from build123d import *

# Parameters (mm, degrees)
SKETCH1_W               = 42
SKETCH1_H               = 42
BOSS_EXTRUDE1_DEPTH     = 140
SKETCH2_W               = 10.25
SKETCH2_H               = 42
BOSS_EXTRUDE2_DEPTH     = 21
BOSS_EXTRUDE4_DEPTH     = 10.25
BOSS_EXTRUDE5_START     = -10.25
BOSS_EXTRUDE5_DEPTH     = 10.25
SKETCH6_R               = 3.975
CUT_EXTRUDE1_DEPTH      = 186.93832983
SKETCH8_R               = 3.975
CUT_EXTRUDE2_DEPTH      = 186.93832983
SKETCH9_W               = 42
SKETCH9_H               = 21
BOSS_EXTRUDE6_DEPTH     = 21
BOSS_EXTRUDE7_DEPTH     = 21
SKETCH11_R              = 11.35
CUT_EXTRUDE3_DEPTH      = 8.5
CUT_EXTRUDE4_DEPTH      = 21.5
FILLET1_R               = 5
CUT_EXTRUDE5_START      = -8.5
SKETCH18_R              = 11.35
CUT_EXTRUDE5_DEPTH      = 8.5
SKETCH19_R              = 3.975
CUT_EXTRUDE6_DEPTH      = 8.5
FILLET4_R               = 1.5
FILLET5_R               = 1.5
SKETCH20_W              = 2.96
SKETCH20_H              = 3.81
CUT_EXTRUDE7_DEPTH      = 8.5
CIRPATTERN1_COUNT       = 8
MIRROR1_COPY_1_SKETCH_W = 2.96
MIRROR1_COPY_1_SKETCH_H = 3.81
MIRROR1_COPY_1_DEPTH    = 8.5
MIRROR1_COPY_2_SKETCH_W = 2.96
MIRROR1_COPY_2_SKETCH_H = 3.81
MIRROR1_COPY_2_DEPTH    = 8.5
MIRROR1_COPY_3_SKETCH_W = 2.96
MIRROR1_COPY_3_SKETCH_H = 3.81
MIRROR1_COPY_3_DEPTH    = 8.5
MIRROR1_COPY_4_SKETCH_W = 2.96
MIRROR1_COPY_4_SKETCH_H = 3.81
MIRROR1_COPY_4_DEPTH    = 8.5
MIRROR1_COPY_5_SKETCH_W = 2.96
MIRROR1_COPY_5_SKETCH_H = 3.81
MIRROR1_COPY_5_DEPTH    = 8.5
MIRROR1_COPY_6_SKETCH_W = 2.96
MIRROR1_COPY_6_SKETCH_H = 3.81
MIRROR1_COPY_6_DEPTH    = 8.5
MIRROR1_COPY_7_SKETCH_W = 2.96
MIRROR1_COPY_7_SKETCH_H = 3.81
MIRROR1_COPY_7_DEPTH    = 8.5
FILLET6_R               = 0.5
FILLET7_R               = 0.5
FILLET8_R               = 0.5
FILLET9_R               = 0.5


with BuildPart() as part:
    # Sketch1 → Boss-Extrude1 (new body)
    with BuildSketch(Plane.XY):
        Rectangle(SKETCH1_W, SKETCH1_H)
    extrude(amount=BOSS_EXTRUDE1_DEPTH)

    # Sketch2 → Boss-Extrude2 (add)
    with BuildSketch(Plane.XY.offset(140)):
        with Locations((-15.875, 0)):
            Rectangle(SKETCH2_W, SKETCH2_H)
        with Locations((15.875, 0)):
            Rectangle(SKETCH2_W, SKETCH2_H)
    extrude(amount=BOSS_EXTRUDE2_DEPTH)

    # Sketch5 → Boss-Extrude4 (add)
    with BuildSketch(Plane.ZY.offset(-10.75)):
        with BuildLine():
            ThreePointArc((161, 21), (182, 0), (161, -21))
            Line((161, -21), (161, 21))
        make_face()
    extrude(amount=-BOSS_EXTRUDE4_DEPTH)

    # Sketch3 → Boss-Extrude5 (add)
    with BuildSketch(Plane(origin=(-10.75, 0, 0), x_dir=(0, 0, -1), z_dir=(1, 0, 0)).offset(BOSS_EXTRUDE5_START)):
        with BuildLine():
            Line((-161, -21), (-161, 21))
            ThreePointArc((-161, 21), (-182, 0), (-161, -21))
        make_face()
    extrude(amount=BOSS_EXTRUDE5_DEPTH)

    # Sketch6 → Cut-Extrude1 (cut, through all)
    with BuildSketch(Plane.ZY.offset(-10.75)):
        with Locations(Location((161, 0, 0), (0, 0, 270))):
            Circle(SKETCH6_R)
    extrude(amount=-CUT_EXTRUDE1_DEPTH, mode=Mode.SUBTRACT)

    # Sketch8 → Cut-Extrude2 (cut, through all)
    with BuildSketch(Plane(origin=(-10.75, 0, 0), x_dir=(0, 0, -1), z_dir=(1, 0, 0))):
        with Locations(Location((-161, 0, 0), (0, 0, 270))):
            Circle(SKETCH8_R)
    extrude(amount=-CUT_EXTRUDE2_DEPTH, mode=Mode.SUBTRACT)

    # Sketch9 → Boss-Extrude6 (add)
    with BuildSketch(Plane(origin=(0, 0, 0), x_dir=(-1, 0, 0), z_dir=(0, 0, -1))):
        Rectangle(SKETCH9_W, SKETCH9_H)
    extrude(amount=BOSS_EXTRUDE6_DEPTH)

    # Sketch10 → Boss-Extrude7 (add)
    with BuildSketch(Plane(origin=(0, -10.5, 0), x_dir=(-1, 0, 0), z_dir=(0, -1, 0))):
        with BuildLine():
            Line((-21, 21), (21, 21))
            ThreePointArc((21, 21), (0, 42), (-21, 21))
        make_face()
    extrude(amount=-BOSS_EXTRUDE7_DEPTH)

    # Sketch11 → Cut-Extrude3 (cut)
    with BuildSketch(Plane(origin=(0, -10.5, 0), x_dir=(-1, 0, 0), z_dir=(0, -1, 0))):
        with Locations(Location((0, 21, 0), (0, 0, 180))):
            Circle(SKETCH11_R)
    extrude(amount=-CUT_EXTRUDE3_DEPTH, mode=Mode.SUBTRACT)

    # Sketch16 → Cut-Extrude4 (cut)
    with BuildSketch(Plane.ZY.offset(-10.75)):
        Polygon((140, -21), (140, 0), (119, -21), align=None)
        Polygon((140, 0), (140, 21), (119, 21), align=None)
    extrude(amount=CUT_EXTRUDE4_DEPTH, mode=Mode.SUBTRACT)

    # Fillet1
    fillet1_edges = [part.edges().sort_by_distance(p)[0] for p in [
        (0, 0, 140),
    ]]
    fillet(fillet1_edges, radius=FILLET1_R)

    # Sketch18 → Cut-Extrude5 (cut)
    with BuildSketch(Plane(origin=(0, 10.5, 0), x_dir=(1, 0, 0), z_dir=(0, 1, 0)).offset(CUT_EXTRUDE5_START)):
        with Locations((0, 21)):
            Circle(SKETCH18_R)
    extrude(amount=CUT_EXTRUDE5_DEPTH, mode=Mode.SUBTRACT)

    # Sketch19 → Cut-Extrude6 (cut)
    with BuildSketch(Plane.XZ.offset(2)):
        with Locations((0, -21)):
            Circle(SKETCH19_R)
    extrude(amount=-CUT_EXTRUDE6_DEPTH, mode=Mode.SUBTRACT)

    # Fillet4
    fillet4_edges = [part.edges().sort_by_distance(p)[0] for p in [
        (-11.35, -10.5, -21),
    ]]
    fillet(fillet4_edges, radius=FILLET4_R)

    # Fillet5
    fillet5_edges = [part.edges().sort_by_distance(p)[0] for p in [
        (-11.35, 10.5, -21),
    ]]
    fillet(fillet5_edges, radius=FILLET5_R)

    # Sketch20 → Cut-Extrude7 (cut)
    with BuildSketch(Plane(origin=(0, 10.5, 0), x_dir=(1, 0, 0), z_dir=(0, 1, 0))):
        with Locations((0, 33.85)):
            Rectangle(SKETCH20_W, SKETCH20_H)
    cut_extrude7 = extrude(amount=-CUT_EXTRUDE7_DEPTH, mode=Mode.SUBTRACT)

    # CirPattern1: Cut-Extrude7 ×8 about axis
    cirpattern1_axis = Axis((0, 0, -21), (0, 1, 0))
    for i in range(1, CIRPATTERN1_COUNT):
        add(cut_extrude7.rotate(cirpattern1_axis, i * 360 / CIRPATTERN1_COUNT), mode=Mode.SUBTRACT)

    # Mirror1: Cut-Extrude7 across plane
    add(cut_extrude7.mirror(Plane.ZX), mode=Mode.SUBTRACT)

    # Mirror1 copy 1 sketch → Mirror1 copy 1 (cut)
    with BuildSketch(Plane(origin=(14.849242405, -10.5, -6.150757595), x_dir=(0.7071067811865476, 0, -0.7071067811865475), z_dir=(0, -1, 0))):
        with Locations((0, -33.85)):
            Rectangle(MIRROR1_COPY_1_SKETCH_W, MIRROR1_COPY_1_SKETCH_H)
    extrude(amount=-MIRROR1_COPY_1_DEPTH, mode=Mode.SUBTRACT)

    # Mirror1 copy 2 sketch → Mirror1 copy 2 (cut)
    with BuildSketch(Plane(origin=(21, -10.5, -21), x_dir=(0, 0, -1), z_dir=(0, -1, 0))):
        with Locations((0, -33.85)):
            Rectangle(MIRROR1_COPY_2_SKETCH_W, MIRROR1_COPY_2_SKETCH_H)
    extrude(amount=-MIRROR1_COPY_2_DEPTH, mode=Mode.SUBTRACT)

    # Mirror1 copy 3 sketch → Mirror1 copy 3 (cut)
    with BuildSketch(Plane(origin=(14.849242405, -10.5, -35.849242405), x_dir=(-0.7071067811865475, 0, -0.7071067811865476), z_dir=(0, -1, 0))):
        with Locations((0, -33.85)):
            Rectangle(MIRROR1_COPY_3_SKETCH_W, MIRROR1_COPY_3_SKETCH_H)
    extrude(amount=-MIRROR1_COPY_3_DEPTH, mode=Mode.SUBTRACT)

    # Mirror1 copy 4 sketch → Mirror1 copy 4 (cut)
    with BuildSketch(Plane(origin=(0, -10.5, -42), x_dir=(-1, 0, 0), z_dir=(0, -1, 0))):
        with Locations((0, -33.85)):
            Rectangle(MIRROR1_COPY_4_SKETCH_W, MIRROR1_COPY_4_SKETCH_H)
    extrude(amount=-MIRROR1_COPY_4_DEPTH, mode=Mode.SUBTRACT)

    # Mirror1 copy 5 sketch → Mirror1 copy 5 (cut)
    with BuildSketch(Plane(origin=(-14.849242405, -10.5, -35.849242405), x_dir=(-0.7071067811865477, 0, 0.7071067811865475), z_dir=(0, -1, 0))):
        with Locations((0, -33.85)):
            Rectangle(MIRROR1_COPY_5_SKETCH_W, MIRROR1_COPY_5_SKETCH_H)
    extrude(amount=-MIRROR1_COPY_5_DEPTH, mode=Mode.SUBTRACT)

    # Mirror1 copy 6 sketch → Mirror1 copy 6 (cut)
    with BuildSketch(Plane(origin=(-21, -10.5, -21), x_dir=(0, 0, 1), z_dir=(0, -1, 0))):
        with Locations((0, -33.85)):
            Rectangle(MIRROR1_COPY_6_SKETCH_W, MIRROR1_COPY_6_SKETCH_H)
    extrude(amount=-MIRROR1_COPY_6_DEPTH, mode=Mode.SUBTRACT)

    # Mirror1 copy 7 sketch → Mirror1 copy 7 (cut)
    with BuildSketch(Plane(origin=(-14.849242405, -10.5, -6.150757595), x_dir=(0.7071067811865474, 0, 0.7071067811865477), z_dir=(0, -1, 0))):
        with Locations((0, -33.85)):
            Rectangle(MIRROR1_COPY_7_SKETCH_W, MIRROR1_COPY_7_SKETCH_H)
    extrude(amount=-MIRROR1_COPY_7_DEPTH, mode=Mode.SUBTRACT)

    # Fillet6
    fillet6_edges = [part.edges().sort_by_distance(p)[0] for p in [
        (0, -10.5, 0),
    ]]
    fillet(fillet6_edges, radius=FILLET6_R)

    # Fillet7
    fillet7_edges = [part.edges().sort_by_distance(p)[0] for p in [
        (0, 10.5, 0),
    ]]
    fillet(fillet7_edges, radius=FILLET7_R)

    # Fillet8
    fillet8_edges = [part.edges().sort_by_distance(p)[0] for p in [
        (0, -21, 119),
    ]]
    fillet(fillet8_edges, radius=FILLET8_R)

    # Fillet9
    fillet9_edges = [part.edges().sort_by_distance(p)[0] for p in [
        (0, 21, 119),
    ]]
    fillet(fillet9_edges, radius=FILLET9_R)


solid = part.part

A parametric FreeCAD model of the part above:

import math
import FreeCAD as App
import Part
import Sketcher
from FreeCAD import Vector
Q = App.Units.Quantity


def edges_at(feature, points):
    """Names of the edges that pass closest to the given points."""
    edges = feature.Shape.Edges
    near = lambda p: min(range(len(edges)), key=lambda i: edges[i].distToShape(Part.Vertex(*p))[0])
    return sorted({f"Edge{near(p) + 1}" for p in points})

doc = App.newDocument("Part")
body = doc.addObject("PartDesign::Body", "Body")

# Sketch on XY plane
sketch1 = doc.addObject("Sketcher::SketchObject", "Sketch")
body.addObject(sketch1)
sketch1.AttachmentSupport = (doc.XY_Plane, [""])
sketch1.MapMode = "FlatFace"
sketch1.addGeometry(Part.LineSegment(Vector(-21, 21, 0), Vector(-21, -21, 0)), False)
sketch1.addGeometry(Part.LineSegment(Vector(-21, -21, 0), Vector(21, -21, 0)), False)
sketch1.addGeometry(Part.LineSegment(Vector(21, -21, 0), Vector(21, 21, 0)), False)
sketch1.addGeometry(Part.LineSegment(Vector(21, 21, 0), Vector(-21, 21, 0)), False)
sketch1.addConstraint(Sketcher.Constraint("Coincident", 0, 2, 1, 1))
sketch1.addConstraint(Sketcher.Constraint("Coincident", 1, 2, 2, 1))
sketch1.addConstraint(Sketcher.Constraint("Coincident", 2, 2, 3, 1))
sketch1.addConstraint(Sketcher.Constraint("Coincident", 3, 2, 0, 1))
sketch1.addConstraint(Sketcher.Constraint("Vertical", 0))
sketch1.addConstraint(Sketcher.Constraint("Horizontal", 1))
sketch1.addConstraint(Sketcher.Constraint("Vertical", 2))
sketch1.addConstraint(Sketcher.Constraint("Horizontal", 3))
sketch1.addConstraint(Sketcher.Constraint("Symmetric", 0, 2, 2, 2, -1, 1))
sketch1.addConstraint(Sketcher.Constraint("Equal", 3, 0))
sketch1.addConstraint(Sketcher.Constraint("DistanceX", 1, 1, 1, 2, 42.0))
pad1 = doc.addObject("PartDesign::Pad", "Pad")
body.addObject(pad1)
pad1.Profile = sketch1
pad1.Length = 140

# Sketch on XY plane
sketch2 = doc.addObject("Sketcher::SketchObject", "Sketch001")
body.addObject(sketch2)
sketch2.AttachmentSupport = (doc.XY_Plane, [""])
sketch2.MapMode = "FlatFace"
sketch2.AttachmentOffset = App.Placement(Vector(0, 0, 140), App.Rotation())
sketch2.addGeometry(Part.LineSegment(Vector(-21, 21, 0), Vector(-21, -21, 0)), False)
sketch2.addGeometry(Part.LineSegment(Vector(-21, -21, 0), Vector(-11, -21, 0)), False)
sketch2.addGeometry(Part.LineSegment(Vector(-11, -21, 0), Vector(-11, 21, 0)), False)
sketch2.addGeometry(Part.LineSegment(Vector(-11, 21, 0), Vector(-21, 21, 0)), False)
sketch2.addGeometry(Part.LineSegment(Vector(11, 21, 0), Vector(11, -21, 0)), False)
sketch2.addGeometry(Part.LineSegment(Vector(11, -21, 0), Vector(21, -21, 0)), False)
sketch2.addGeometry(Part.LineSegment(Vector(21, -21, 0), Vector(21, 21, 0)), False)
sketch2.addGeometry(Part.LineSegment(Vector(21, 21, 0), Vector(11, 21, 0)), False)
sketch2.addConstraint(Sketcher.Constraint("Coincident", 0, 2, 1, 1))
sketch2.addConstraint(Sketcher.Constraint("Coincident", 1, 2, 2, 1))
sketch2.addConstraint(Sketcher.Constraint("Coincident", 2, 2, 3, 1))
sketch2.addConstraint(Sketcher.Constraint("Coincident", 3, 2, 0, 1))
sketch2.addConstraint(Sketcher.Constraint("Coincident", 4, 2, 5, 1))
sketch2.addConstraint(Sketcher.Constraint("Coincident", 5, 2, 6, 1))
sketch2.addConstraint(Sketcher.Constraint("Coincident", 6, 2, 7, 1))
sketch2.addConstraint(Sketcher.Constraint("Coincident", 7, 2, 4, 1))
sketch2.addConstraint(Sketcher.Constraint("Vertical", 0))
sketch2.addConstraint(Sketcher.Constraint("Horizontal", 1))
sketch2.addConstraint(Sketcher.Constraint("Vertical", 2))
sketch2.addConstraint(Sketcher.Constraint("Horizontal", 3))
sketch2.addConstraint(Sketcher.Constraint("Vertical", 4))
sketch2.addConstraint(Sketcher.Constraint("Horizontal", 5))
sketch2.addConstraint(Sketcher.Constraint("Vertical", 6))
sketch2.addConstraint(Sketcher.Constraint("Horizontal", 7))
sketch2.addConstraint(Sketcher.Constraint("Symmetric", 2, 2, 4, 2, -1, 1))
sketch2.addConstraint(Sketcher.Constraint("Symmetric", 0, 2, 6, 2, -1, 1))
sketch2.addConstraint(Sketcher.Constraint("Horizontal", 1, 2, 4, 2))
sketch2.addConstraint(Sketcher.Constraint("DistanceY", 0, 2, 0, 1, 42.0))
sketch2.addConstraint(Sketcher.Constraint("DistanceX", 0, 2, -1, 1, 21.0))
sketch2.addConstraint(Sketcher.Constraint("DistanceX", 1, 1, 1, 2, 10.25))
pad2 = doc.addObject("PartDesign::Pad", "Pad001")
body.addObject(pad2)
pad2.Profile = sketch2
pad2.Length = 21

# Sketch on YZ plane
sketch3 = doc.addObject("Sketcher::SketchObject", "Sketch002")
body.addObject(sketch3)
sketch3.AttachmentSupport = (doc.YZ_Plane, [""])
sketch3.MapMode = "FlatFace"
sketch3.AttachmentOffset = App.Placement(Vector(0, 0, 10.75), App.Rotation())
sketch3.addGeometry(Part.ArcOfCircle(Part.Circle(Vector(0, 161, 0), Vector(0, 0, 1), 21), math.radians(0), math.radians(180)), False)
sketch3.addGeometry(Part.LineSegment(Vector(21, 161, 0), Vector(-21, 161, 0)), False)
sketch3.addConstraint(Sketcher.Constraint("Coincident", 0, 1, 1, 1))
sketch3.addConstraint(Sketcher.Constraint("Coincident", 1, 2, 0, 2))
sketch3.addConstraint(Sketcher.Constraint("Horizontal", 1))
sketch3.addConstraint(Sketcher.Constraint("PointOnObject", 0, 3, -2))
sketch3.addConstraint(Sketcher.Constraint("Radius", 0, 21.0))
sketch3.addConstraint(Sketcher.Constraint("DistanceY", -1, 1, 0, 3, 161.0))
sketch3.addConstraint(Sketcher.Constraint("DistanceY", -1, 1, 0, 1, 161.0))
pad3 = doc.addObject("PartDesign::Pad", "Pad002")
body.addObject(pad3)
pad3.Profile = sketch3
pad3.Length = 10.25

# Sketch on YZ plane
sketch4 = doc.addObject("Sketcher::SketchObject", "Sketch003")
body.addObject(sketch4)
sketch4.AttachmentSupport = (doc.YZ_Plane, [""])
sketch4.MapMode = "FlatFace"
sketch4.AttachmentOffset = App.Placement(Vector(0, 0, -21), App.Rotation())
sketch4.addGeometry(Part.LineSegment(Vector(-21, 161, 0), Vector(21, 161, 0)), False)
sketch4.addGeometry(Part.ArcOfCircle(Part.Circle(Vector(0, 161, 0), Vector(0, 0, 1), 21), math.radians(0), math.radians(180)), False)
sketch4.addConstraint(Sketcher.Constraint("Coincident", 0, 1, 1, 2))
sketch4.addConstraint(Sketcher.Constraint("Coincident", 1, 1, 0, 2))
sketch4.addConstraint(Sketcher.Constraint("Horizontal", 0))
sketch4.addConstraint(Sketcher.Constraint("PointOnObject", 1, 3, -2))
sketch4.addConstraint(Sketcher.Constraint("Horizontal", 1, 3, 0, 1))
sketch4.addConstraint(Sketcher.Constraint("Radius", 1, 21.0))
sketch4.addConstraint(Sketcher.Constraint("DistanceY", -1, 1, 1, 3, 161.0))
pad4 = doc.addObject("PartDesign::Pad", "Pad003")
body.addObject(pad4)
pad4.Profile = sketch4
pad4.Length = 10.25

# Sketch on YZ plane
sketch5 = doc.addObject("Sketcher::SketchObject", "Sketch004")
body.addObject(sketch5)
sketch5.AttachmentSupport = (doc.YZ_Plane, [""])
sketch5.MapMode = "FlatFace"
sketch5.AttachmentOffset = App.Placement(Vector(0, 0, 10.75), App.Rotation())
sketch5.addGeometry(Part.Circle(Vector(0, 161, 0), Vector(0, 0, 1), 4), False)
sketch5.addConstraint(Sketcher.Constraint("PointOnObject", 0, 3, -2))
sketch5.addConstraint(Sketcher.Constraint("Diameter", 0, 7.95))
sketch5.addConstraint(Sketcher.Constraint("DistanceY", -1, 1, 0, 3, 161.0))
pocket1 = doc.addObject("PartDesign::Pocket", "Pocket")
body.addObject(pocket1)
pocket1.Profile = sketch5
pocket1.Type = "ThroughAll"
pocket1.Reversed = True

# Sketch on YZ plane
sketch6 = doc.addObject("Sketcher::SketchObject", "Sketch005")
body.addObject(sketch6)
sketch6.AttachmentSupport = (doc.YZ_Plane, [""])
sketch6.MapMode = "FlatFace"
sketch6.AttachmentOffset = App.Placement(Vector(0, 0, -10.75), App.Rotation())
sketch6.addGeometry(Part.Circle(Vector(0, 161, 0), Vector(0, 0, 1), 4), False)
sketch6.addConstraint(Sketcher.Constraint("PointOnObject", 0, 3, -2))
sketch6.addConstraint(Sketcher.Constraint("Diameter", 0, 7.95))
sketch6.addConstraint(Sketcher.Constraint("DistanceY", -1, 1, 0, 3, 161.0))
pocket2 = doc.addObject("PartDesign::Pocket", "Pocket001")
body.addObject(pocket2)
pocket2.Profile = sketch6
pocket2.Type = "ThroughAll"

# Sketch on XY plane
sketch7 = doc.addObject("Sketcher::SketchObject", "Sketch006")
body.addObject(sketch7)
sketch7.AttachmentSupport = (doc.XY_Plane, [""])
sketch7.MapMode = "FlatFace"
sketch7.addGeometry(Part.LineSegment(Vector(21, 10, 0), Vector(21, -10, 0)), False)
sketch7.addGeometry(Part.LineSegment(Vector(21, -10, 0), Vector(-21, -10, 0)), False)
sketch7.addGeometry(Part.LineSegment(Vector(-21, -10, 0), Vector(-21, 10, 0)), False)
sketch7.addGeometry(Part.LineSegment(Vector(-21, 10, 0), Vector(21, 10, 0)), False)
sketch7.addConstraint(Sketcher.Constraint("Coincident", 0, 2, 1, 1))
sketch7.addConstraint(Sketcher.Constraint("Coincident", 1, 2, 2, 1))
sketch7.addConstraint(Sketcher.Constraint("Coincident", 2, 2, 3, 1))
sketch7.addConstraint(Sketcher.Constraint("Coincident", 3, 2, 0, 1))
sketch7.addConstraint(Sketcher.Constraint("Vertical", 0))
sketch7.addConstraint(Sketcher.Constraint("Horizontal", 1))
sketch7.addConstraint(Sketcher.Constraint("Vertical", 2))
sketch7.addConstraint(Sketcher.Constraint("Horizontal", 3))
sketch7.addConstraint(Sketcher.Constraint("Symmetric", 0, 2, 2, 2, -1, 1))
sketch7.addConstraint(Sketcher.Constraint("DistanceX", 1, 2, 1, 1, 42.0))
sketch7.addConstraint(Sketcher.Constraint("DistanceY", 0, 2, 0, 1, 21.0))
pad5 = doc.addObject("PartDesign::Pad", "Pad004")
body.addObject(pad5)
pad5.Profile = sketch7
pad5.Length = 21
pad5.Reversed = True

# Sketch on XZ plane
sketch8 = doc.addObject("Sketcher::SketchObject", "Sketch007")
body.addObject(sketch8)
sketch8.AttachmentSupport = (doc.XZ_Plane, [""])
sketch8.MapMode = "FlatFace"
sketch8.AttachmentOffset = App.Placement(Vector(0, 0, 10.5), App.Rotation())
sketch8.addGeometry(Part.LineSegment(Vector(21, -21, 0), Vector(-21, -21, 0)), False)
sketch8.addGeometry(Part.ArcOfCircle(Part.Circle(Vector(0, -21, 0), Vector(0, 0, 1), 21), math.radians(180), math.radians(360)), False)
sketch8.addConstraint(Sketcher.Constraint("Coincident", 0, 1, 1, 2))
sketch8.addConstraint(Sketcher.Constraint("Coincident", 1, 1, 0, 2))
sketch8.addConstraint(Sketcher.Constraint("Horizontal", 0))
sketch8.addConstraint(Sketcher.Constraint("PointOnObject", 1, 3, -2))
sketch8.addConstraint(Sketcher.Constraint("Horizontal", 1, 3, 0, 1))
sketch8.addConstraint(Sketcher.Constraint("Radius", 1, 21.0))
sketch8.addConstraint(Sketcher.Constraint("DistanceY", 1, 3, -1, 1, 21.0))
pad6 = doc.addObject("PartDesign::Pad", "Pad005")
body.addObject(pad6)
pad6.Profile = sketch8
pad6.Length = 21
pad6.Reversed = True

# Sketch on XZ plane
sketch9 = doc.addObject("Sketcher::SketchObject", "Sketch008")
body.addObject(sketch9)
sketch9.AttachmentSupport = (doc.XZ_Plane, [""])
sketch9.MapMode = "FlatFace"
sketch9.AttachmentOffset = App.Placement(Vector(0, 0, 10.5), App.Rotation())
sketch9.addGeometry(Part.Circle(Vector(0, -21, 0), Vector(0, 0, 1), 11), False)
sketch9.addConstraint(Sketcher.Constraint("PointOnObject", 0, 3, -2))
sketch9.addConstraint(Sketcher.Constraint("Diameter", 0, 22.7))
sketch9.addConstraint(Sketcher.Constraint("DistanceY", 0, 3, -1, 1, 21.0))
pocket3 = doc.addObject("PartDesign::Pocket", "Pocket002")
body.addObject(pocket3)
pocket3.Profile = sketch9
pocket3.Length = 8.5

# Sketch on YZ plane
sketch10 = doc.addObject("Sketcher::SketchObject", "Sketch009")
body.addObject(sketch10)
sketch10.AttachmentSupport = (doc.YZ_Plane, [""])
sketch10.MapMode = "FlatFace"
sketch10.AttachmentOffset = App.Placement(Vector(0, 0, 10.75), App.Rotation())
sketch10.addGeometry(Part.LineSegment(Vector(-21, 140, 0), Vector(0, 140, 0)), False)
sketch10.addGeometry(Part.LineSegment(Vector(0, 140, 0), Vector(-21, 119, 0)), False)
sketch10.addGeometry(Part.LineSegment(Vector(-21, 119, 0), Vector(-21, 140, 0)), False)
sketch10.addGeometry(Part.LineSegment(Vector(0, 140, 0), Vector(21, 140, 0)), False)
sketch10.addGeometry(Part.LineSegment(Vector(21, 140, 0), Vector(21, 119, 0)), False)
sketch10.addGeometry(Part.LineSegment(Vector(21, 119, 0), Vector(0, 140, 0)), False)
sketch10.addConstraint(Sketcher.Constraint("Coincident", 0, 2, 1, 1))
sketch10.addConstraint(Sketcher.Constraint("Coincident", 1, 2, 2, 1))
sketch10.addConstraint(Sketcher.Constraint("Coincident", 2, 2, 0, 1))
sketch10.addConstraint(Sketcher.Constraint("Coincident", 3, 2, 4, 1))
sketch10.addConstraint(Sketcher.Constraint("Coincident", 4, 2, 5, 1))
sketch10.addConstraint(Sketcher.Constraint("Coincident", 5, 2, 3, 1))
sketch10.addConstraint(Sketcher.Constraint("Horizontal", 0))
sketch10.addConstraint(Sketcher.Constraint("Vertical", 2))
sketch10.addConstraint(Sketcher.Constraint("Horizontal", 3))
sketch10.addConstraint(Sketcher.Constraint("Vertical", 4))
sketch10.addConstraint(Sketcher.Constraint("Coincident", 5, 2, 0, 2))
sketch10.addConstraint(Sketcher.Constraint("Symmetric", 1, 2, 4, 2, -2))
sketch10.addConstraint(Sketcher.Constraint("PointOnObject", 0, 2, -2))
sketch10.addConstraint(Sketcher.Constraint("Perpendicular", 1, 5))
sketch10.addConstraint(Sketcher.Constraint("DistanceX", 0, 1, 0, 2, 21.0))
sketch10.addConstraint(Sketcher.Constraint("DistanceY", -1, 1, 0, 2, 140.0))
pocket4 = doc.addObject("PartDesign::Pocket", "Pocket003")
body.addObject(pocket4)
pocket4.Profile = sketch10
pocket4.Length = 21.5
doc.recompute()

fillet = doc.addObject("PartDesign::Fillet", "Fillet")
body.addObject(fillet)
fillet.Base = (pocket4, edges_at(pocket4, [(0, 0, 140)]))
fillet.Radius = 5

# Sketch on XZ plane
sketch11 = doc.addObject("Sketcher::SketchObject", "Sketch010")
body.addObject(sketch11)
sketch11.AttachmentSupport = (doc.XZ_Plane, [""])
sketch11.MapMode = "FlatFace"
sketch11.AttachmentOffset = App.Placement(Vector(0, 0, -2), App.Rotation())
sketch11.addGeometry(Part.Circle(Vector(0, -21, 0), Vector(0, 0, 1), 11), False)
sketch11.addConstraint(Sketcher.Constraint("PointOnObject", 0, 3, -2))
sketch11.addConstraint(Sketcher.Constraint("Diameter", 0, 22.7))
sketch11.addConstraint(Sketcher.Constraint("DistanceY", 0, 3, -1, 1, 21.0))
pocket5 = doc.addObject("PartDesign::Pocket", "Pocket004")
body.addObject(pocket5)
pocket5.Profile = sketch11
pocket5.Length = 8.5

# Sketch on XZ plane
sketch12 = doc.addObject("Sketcher::SketchObject", "Sketch011")
body.addObject(sketch12)
sketch12.AttachmentSupport = (doc.XZ_Plane, [""])
sketch12.MapMode = "FlatFace"
sketch12.AttachmentOffset = App.Placement(Vector(0, 0, 2), App.Rotation())
sketch12.addGeometry(Part.Circle(Vector(0, -21, 0), Vector(0, 0, 1), 4), False)
sketch12.addConstraint(Sketcher.Constraint("PointOnObject", 0, 3, -2))
sketch12.addConstraint(Sketcher.Constraint("Diameter", 0, 7.95))
sketch12.addConstraint(Sketcher.Constraint("DistanceY", 0, 3, -1, 1, 21.0))
pocket6 = doc.addObject("PartDesign::Pocket", "Pocket005")
body.addObject(pocket6)
pocket6.Profile = sketch12
pocket6.Length = 8.5
doc.recompute()

fillet2 = doc.addObject("PartDesign::Fillet", "Fillet001")
body.addObject(fillet2)
fillet2.Base = (pocket6, edges_at(pocket6, [(-11.35, -10.5, -21)]))
fillet2.Radius = 1.5
doc.recompute()

fillet3 = doc.addObject("PartDesign::Fillet", "Fillet002")
body.addObject(fillet3)
fillet3.Base = (fillet2, edges_at(fillet2, [(-11.35, 10.5, -21)]))
fillet3.Radius = 1.5

# Sketch on XZ plane
sketch13 = doc.addObject("Sketcher::SketchObject", "Sketch012")
body.addObject(sketch13)
sketch13.AttachmentSupport = (doc.XZ_Plane, [""])
sketch13.MapMode = "FlatFace"
sketch13.AttachmentOffset = App.Placement(Vector(0, 0, -10.5), App.Rotation())
sketch13.addGeometry(Part.LineSegment(Vector(-1.5, -35.8, 0), Vector(-1.5, -31.9, 0)), False)
sketch13.addGeometry(Part.LineSegment(Vector(-1.5, -31.9, 0), Vector(1.5, -31.9, 0)), False)
sketch13.addGeometry(Part.LineSegment(Vector(1.5, -31.9, 0), Vector(1.5, -35.8, 0)), False)
sketch13.addGeometry(Part.LineSegment(Vector(1.5, -35.8, 0), Vector(-1.5, -35.8, 0)), False)
sketch13.addConstraint(Sketcher.Constraint("Coincident", 0, 2, 1, 1))
sketch13.addConstraint(Sketcher.Constraint("Coincident", 1, 2, 2, 1))
sketch13.addConstraint(Sketcher.Constraint("Coincident", 2, 2, 3, 1))
sketch13.addConstraint(Sketcher.Constraint("Coincident", 3, 2, 0, 1))
sketch13.addConstraint(Sketcher.Constraint("Vertical", 0))
sketch13.addConstraint(Sketcher.Constraint("Horizontal", 1))
sketch13.addConstraint(Sketcher.Constraint("Vertical", 2))
sketch13.addConstraint(Sketcher.Constraint("Horizontal", 3))
sketch13.addConstraint(Sketcher.Constraint("DistanceX", 1, 1, 1, 2, 2.96))
sketch13.addConstraint(Sketcher.Constraint("DistanceY", 0, 1, 0, 2, 3.81))
sketch13.addConstraint(Sketcher.Constraint("DistanceX", 0, 2, -1, 1, 1.48))
sketch13.addConstraint(Sketcher.Constraint("DistanceY", 0, 2, -1, 1, 31.945))
pocket7 = doc.addObject("PartDesign::Pocket", "Pocket006")
body.addObject(pocket7)
pocket7.Profile = sketch13
pocket7.Length = 8.5
pocket7.Reversed = True
doc.recompute()

datumline = doc.addObject("PartDesign::Line", "DatumLine")
body.addObject(datumline)
datumline.Placement = App.Placement(Vector(0, 0, -21), App.Rotation(Vector(0, 0, 1), Vector(0, 1, 0)))
polarpattern = doc.addObject("PartDesign::PolarPattern", "PolarPattern")
body.addObject(polarpattern)
polarpattern.Originals = [pocket7]
polarpattern.Axis = (datumline, [""])
polarpattern.Angle = 360
polarpattern.Occurrences = 8
body.Tip = polarpattern
doc.recompute()

mirrored = doc.addObject("PartDesign::Mirrored", "Mirrored")
body.addObject(mirrored)
mirrored.Originals = [pocket7]
mirrored.MirrorPlane = (doc.XZ_Plane, [""])
body.Tip = mirrored

# Sketch on XZ plane
sketch14 = doc.addObject("Sketcher::SketchObject", "Sketch013")
body.addObject(sketch14)
sketch14.AttachmentSupport = (doc.XZ_Plane, [""])
sketch14.MapMode = "FlatFace"
sketch14.AttachmentOffset = App.Placement(Vector(0, 0, 10.5), App.Rotation())
sketch14.addGeometry(Part.LineSegment(Vector(-8.8, -27.7, 0), Vector(-11.5, -30.4, 0)), False)
sketch14.addGeometry(Part.LineSegment(Vector(-11.5, -30.4, 0), Vector(-9.4, -32.5, 0)), False)
sketch14.addGeometry(Part.LineSegment(Vector(-9.4, -32.5, 0), Vector(-6.7, -29.8, 0)), False)
sketch14.addGeometry(Part.LineSegment(Vector(-6.7, -29.8, 0), Vector(-8.8, -27.7, 0)), False)
sketch14.addConstraint(Sketcher.Constraint("Coincident", 0, 2, 1, 1))
sketch14.addConstraint(Sketcher.Constraint("Coincident", 1, 2, 2, 1))
sketch14.addConstraint(Sketcher.Constraint("Coincident", 2, 2, 3, 1))
sketch14.addConstraint(Sketcher.Constraint("Coincident", 3, 2, 0, 1))
sketch14.addConstraint(Sketcher.Constraint("Perpendicular", 0, 1))
sketch14.addConstraint(Sketcher.Constraint("Perpendicular", 1, 2))
sketch14.addConstraint(Sketcher.Constraint("Perpendicular", 2, 3))
sketch14.addConstraint(Sketcher.Constraint("Angle", 0, Q("-135 deg")))
sketch14.addConstraint(Sketcher.Constraint("Distance", 0, 3.81))
sketch14.addConstraint(Sketcher.Constraint("Distance", 1, 2.96))
sketch14.addConstraint(Sketcher.Constraint("DistanceY", 2, 2, -1, 1, 29.785802))
sketch14.addConstraint(Sketcher.Constraint("DistanceX", 3, 2, -1, 1, 8.785802))
pocket8 = doc.addObject("PartDesign::Pocket", "Pocket007")
body.addObject(pocket8)
pocket8.Profile = sketch14
pocket8.Length = 8.5

# Sketch on XZ plane
sketch15 = doc.addObject("Sketcher::SketchObject", "Sketch014")
body.addObject(sketch15)
sketch15.AttachmentSupport = (doc.XZ_Plane, [""])
sketch15.MapMode = "FlatFace"
sketch15.AttachmentOffset = App.Placement(Vector(0, 0, 10.5), App.Rotation())
sketch15.addGeometry(Part.LineSegment(Vector(-10.9, -19.5, 0), Vector(-14.8, -19.5, 0)), False)
sketch15.addGeometry(Part.LineSegment(Vector(-14.8, -19.5, 0), Vector(-14.8, -22.5, 0)), False)
sketch15.addGeometry(Part.LineSegment(Vector(-14.8, -22.5, 0), Vector(-10.9, -22.5, 0)), False)
sketch15.addGeometry(Part.LineSegment(Vector(-10.9, -22.5, 0), Vector(-10.9, -19.5, 0)), False)
sketch15.addConstraint(Sketcher.Constraint("Coincident", 0, 2, 1, 1))
sketch15.addConstraint(Sketcher.Constraint("Coincident", 1, 2, 2, 1))
sketch15.addConstraint(Sketcher.Constraint("Coincident", 2, 2, 3, 1))
sketch15.addConstraint(Sketcher.Constraint("Coincident", 3, 2, 0, 1))
sketch15.addConstraint(Sketcher.Constraint("Horizontal", 0))
sketch15.addConstraint(Sketcher.Constraint("Vertical", 1))
sketch15.addConstraint(Sketcher.Constraint("Horizontal", 2))
sketch15.addConstraint(Sketcher.Constraint("Vertical", 3))
sketch15.addConstraint(Sketcher.Constraint("DistanceX", 0, 2, 0, 1, 3.81))
sketch15.addConstraint(Sketcher.Constraint("DistanceY", 1, 2, 1, 1, 2.96))
sketch15.addConstraint(Sketcher.Constraint("DistanceY", 0, 2, -1, 1, 19.52))
sketch15.addConstraint(Sketcher.Constraint("DistanceX", 0, 2, -1, 1, 14.755))
pocket9 = doc.addObject("PartDesign::Pocket", "Pocket008")
body.addObject(pocket9)
pocket9.Profile = sketch15
pocket9.Length = 8.5

# Sketch on XZ plane
sketch16 = doc.addObject("Sketcher::SketchObject", "Sketch015")
body.addObject(sketch16)
sketch16.AttachmentSupport = (doc.XZ_Plane, [""])
sketch16.MapMode = "FlatFace"
sketch16.AttachmentOffset = App.Placement(Vector(0, 0, 10.5), App.Rotation())
sketch16.addGeometry(Part.LineSegment(Vector(-6.7, -12.2, 0), Vector(-9.4, -9.5, 0)), False)
sketch16.addGeometry(Part.LineSegment(Vector(-9.4, -9.5, 0), Vector(-11.5, -11.6, 0)), False)
sketch16.addGeometry(Part.LineSegment(Vector(-11.5, -11.6, 0), Vector(-8.8, -14.3, 0)), False)
sketch16.addGeometry(Part.LineSegment(Vector(-8.8, -14.3, 0), Vector(-6.7, -12.2, 0)), False)
sketch16.addConstraint(Sketcher.Constraint("Coincident", 0, 2, 1, 1))
sketch16.addConstraint(Sketcher.Constraint("Coincident", 1, 2, 2, 1))
sketch16.addConstraint(Sketcher.Constraint("Coincident", 2, 2, 3, 1))
sketch16.addConstraint(Sketcher.Constraint("Coincident", 3, 2, 0, 1))
sketch16.addConstraint(Sketcher.Constraint("Perpendicular", 0, 1))
sketch16.addConstraint(Sketcher.Constraint("Perpendicular", 1, 2))
sketch16.addConstraint(Sketcher.Constraint("Perpendicular", 2, 3))
sketch16.addConstraint(Sketcher.Constraint("Angle", 0, Q("135 deg")))
sketch16.addConstraint(Sketcher.Constraint("Distance", 0, 3.81))
sketch16.addConstraint(Sketcher.Constraint("Distance", 1, 2.96))
sketch16.addConstraint(Sketcher.Constraint("DistanceX", 2, 2, -1, 1, 8.785802))
sketch16.addConstraint(Sketcher.Constraint("DistanceY", 3, 2, -1, 1, 12.214198))
pocket10 = doc.addObject("PartDesign::Pocket", "Pocket009")
body.addObject(pocket10)
pocket10.Profile = sketch16
pocket10.Length = 8.5

# Sketch on XZ plane
sketch17 = doc.addObject("Sketcher::SketchObject", "Sketch016")
body.addObject(sketch17)
sketch17.AttachmentSupport = (doc.XZ_Plane, [""])
sketch17.MapMode = "FlatFace"
sketch17.AttachmentOffset = App.Placement(Vector(0, 0, 10.5), App.Rotation())
sketch17.addGeometry(Part.LineSegment(Vector(1.5, -10.1, 0), Vector(1.5, -6.2, 0)), False)
sketch17.addGeometry(Part.LineSegment(Vector(1.5, -6.2, 0), Vector(-1.5, -6.2, 0)), False)
sketch17.addGeometry(Part.LineSegment(Vector(-1.5, -6.2, 0), Vector(-1.5, -10.1, 0)), False)
sketch17.addGeometry(Part.LineSegment(Vector(-1.5, -10.1, 0), Vector(1.5, -10.1, 0)), False)
sketch17.addConstraint(Sketcher.Constraint("Coincident", 0, 2, 1, 1))
sketch17.addConstraint(Sketcher.Constraint("Coincident", 1, 2, 2, 1))
sketch17.addConstraint(Sketcher.Constraint("Coincident", 2, 2, 3, 1))
sketch17.addConstraint(Sketcher.Constraint("Coincident", 3, 2, 0, 1))
sketch17.addConstraint(Sketcher.Constraint("Vertical", 0))
sketch17.addConstraint(Sketcher.Constraint("Horizontal", 1))
sketch17.addConstraint(Sketcher.Constraint("Vertical", 2))
sketch17.addConstraint(Sketcher.Constraint("Horizontal", 3))
sketch17.addConstraint(Sketcher.Constraint("DistanceX", 1, 2, 1, 1, 2.96))
sketch17.addConstraint(Sketcher.Constraint("DistanceY", 0, 1, 0, 2, 3.81))
sketch17.addConstraint(Sketcher.Constraint("DistanceX", -1, 1, 0, 2, 1.48))
sketch17.addConstraint(Sketcher.Constraint("DistanceY", 0, 2, -1, 1, 6.245))
pocket11 = doc.addObject("PartDesign::Pocket", "Pocket010")
body.addObject(pocket11)
pocket11.Profile = sketch17
pocket11.Length = 8.5

# Sketch on XZ plane
sketch18 = doc.addObject("Sketcher::SketchObject", "Sketch017")
body.addObject(sketch18)
sketch18.AttachmentSupport = (doc.XZ_Plane, [""])
sketch18.MapMode = "FlatFace"
sketch18.AttachmentOffset = App.Placement(Vector(0, 0, 10.5), App.Rotation())
sketch18.addGeometry(Part.LineSegment(Vector(8.8, -14.3, 0), Vector(11.5, -11.6, 0)), False)
sketch18.addGeometry(Part.LineSegment(Vector(11.5, -11.6, 0), Vector(9.4, -9.5, 0)), False)
sketch18.addGeometry(Part.LineSegment(Vector(9.4, -9.5, 0), Vector(6.7, -12.2, 0)), False)
sketch18.addGeometry(Part.LineSegment(Vector(6.7, -12.2, 0), Vector(8.8, -14.3, 0)), False)
sketch18.addConstraint(Sketcher.Constraint("Coincident", 0, 2, 1, 1))
sketch18.addConstraint(Sketcher.Constraint("Coincident", 1, 2, 2, 1))
sketch18.addConstraint(Sketcher.Constraint("Coincident", 2, 2, 3, 1))
sketch18.addConstraint(Sketcher.Constraint("Coincident", 3, 2, 0, 1))
sketch18.addConstraint(Sketcher.Constraint("Perpendicular", 0, 1))
sketch18.addConstraint(Sketcher.Constraint("Perpendicular", 1, 2))
sketch18.addConstraint(Sketcher.Constraint("Perpendicular", 2, 3))
sketch18.addConstraint(Sketcher.Constraint("Angle", 0, Q("45 deg")))
sketch18.addConstraint(Sketcher.Constraint("Distance", 0, 3.81))
sketch18.addConstraint(Sketcher.Constraint("Distance", 1, 2.96))
sketch18.addConstraint(Sketcher.Constraint("DistanceY", 2, 2, -1, 1, 12.214198))
sketch18.addConstraint(Sketcher.Constraint("DistanceX", -1, 1, 3, 2, 8.785802))
pocket12 = doc.addObject("PartDesign::Pocket", "Pocket011")
body.addObject(pocket12)
pocket12.Profile = sketch18
pocket12.Length = 8.5

# Sketch on XZ plane
sketch19 = doc.addObject("Sketcher::SketchObject", "Sketch018")
body.addObject(sketch19)
sketch19.AttachmentSupport = (doc.XZ_Plane, [""])
sketch19.MapMode = "FlatFace"
sketch19.AttachmentOffset = App.Placement(Vector(0, 0, 10.5), App.Rotation())
sketch19.addGeometry(Part.LineSegment(Vector(10.9, -22.5, 0), Vector(14.8, -22.5, 0)), False)
sketch19.addGeometry(Part.LineSegment(Vector(14.8, -22.5, 0), Vector(14.8, -19.5, 0)), False)
sketch19.addGeometry(Part.LineSegment(Vector(14.8, -19.5, 0), Vector(10.9, -19.5, 0)), False)
sketch19.addGeometry(Part.LineSegment(Vector(10.9, -19.5, 0), Vector(10.9, -22.5, 0)), False)
sketch19.addConstraint(Sketcher.Constraint("Coincident", 0, 2, 1, 1))
sketch19.addConstraint(Sketcher.Constraint("Coincident", 1, 2, 2, 1))
sketch19.addConstraint(Sketcher.Constraint("Coincident", 2, 2, 3, 1))
sketch19.addConstraint(Sketcher.Constraint("Coincident", 3, 2, 0, 1))
sketch19.addConstraint(Sketcher.Constraint("Horizontal", 0))
sketch19.addConstraint(Sketcher.Constraint("Vertical", 1))
sketch19.addConstraint(Sketcher.Constraint("Horizontal", 2))
sketch19.addConstraint(Sketcher.Constraint("Vertical", 3))
sketch19.addConstraint(Sketcher.Constraint("DistanceX", 0, 1, 0, 2, 3.81))
sketch19.addConstraint(Sketcher.Constraint("DistanceY", 1, 1, 1, 2, 2.96))
sketch19.addConstraint(Sketcher.Constraint("DistanceY", 0, 2, -1, 1, 22.48))
sketch19.addConstraint(Sketcher.Constraint("DistanceX", -1, 1, 0, 2, 14.755))
pocket13 = doc.addObject("PartDesign::Pocket", "Pocket012")
body.addObject(pocket13)
pocket13.Profile = sketch19
pocket13.Length = 8.5

# Sketch on XZ plane
sketch20 = doc.addObject("Sketcher::SketchObject", "Sketch019")
body.addObject(sketch20)
sketch20.AttachmentSupport = (doc.XZ_Plane, [""])
sketch20.MapMode = "FlatFace"
sketch20.AttachmentOffset = App.Placement(Vector(0, 0, 10.5), App.Rotation())
sketch20.addGeometry(Part.LineSegment(Vector(6.7, -29.8, 0), Vector(9.4, -32.5, 0)), False)
sketch20.addGeometry(Part.LineSegment(Vector(9.4, -32.5, 0), Vector(11.5, -30.4, 0)), False)
sketch20.addGeometry(Part.LineSegment(Vector(11.5, -30.4, 0), Vector(8.8, -27.7, 0)), False)
sketch20.addGeometry(Part.LineSegment(Vector(8.8, -27.7, 0), Vector(6.7, -29.8, 0)), False)
sketch20.addConstraint(Sketcher.Constraint("Coincident", 0, 2, 1, 1))
sketch20.addConstraint(Sketcher.Constraint("Coincident", 1, 2, 2, 1))
sketch20.addConstraint(Sketcher.Constraint("Coincident", 2, 2, 3, 1))
sketch20.addConstraint(Sketcher.Constraint("Coincident", 3, 2, 0, 1))
sketch20.addConstraint(Sketcher.Constraint("Perpendicular", 0, 1))
sketch20.addConstraint(Sketcher.Constraint("Perpendicular", 1, 2))
sketch20.addConstraint(Sketcher.Constraint("Perpendicular", 2, 3))
sketch20.addConstraint(Sketcher.Constraint("Angle", 0, Q("-45 deg")))
sketch20.addConstraint(Sketcher.Constraint("Distance", 0, 3.81))
sketch20.addConstraint(Sketcher.Constraint("Distance", 1, 2.96))
sketch20.addConstraint(Sketcher.Constraint("DistanceX", -1, 1, 2, 2, 8.785802))
sketch20.addConstraint(Sketcher.Constraint("DistanceY", 3, 2, -1, 1, 29.785802))
pocket14 = doc.addObject("PartDesign::Pocket", "Pocket013")
body.addObject(pocket14)
pocket14.Profile = sketch20
pocket14.Length = 8.5
doc.recompute()

fillet4 = doc.addObject("PartDesign::Fillet", "Fillet003")
body.addObject(fillet4)
fillet4.Base = (pocket14, edges_at(pocket14, [(0, -10.5, 0)]))
fillet4.Radius = 0.5
doc.recompute()

fillet5 = doc.addObject("PartDesign::Fillet", "Fillet004")
body.addObject(fillet5)
fillet5.Base = (fillet4, edges_at(fillet4, [(0, 10.5, 0)]))
fillet5.Radius = 0.5
doc.recompute()

fillet6 = doc.addObject("PartDesign::Fillet", "Fillet005")
body.addObject(fillet6)
fillet6.Base = (fillet5, edges_at(fillet5, [(0, -21, 119)]))
fillet6.Radius = 0.5
doc.recompute()

fillet7 = doc.addObject("PartDesign::Fillet", "Fillet006")
body.addObject(fillet7)
fillet7.Base = (fillet6, edges_at(fillet6, [(0, 21, 119)]))
fillet7.Radius = 0.5

doc.recompute()
